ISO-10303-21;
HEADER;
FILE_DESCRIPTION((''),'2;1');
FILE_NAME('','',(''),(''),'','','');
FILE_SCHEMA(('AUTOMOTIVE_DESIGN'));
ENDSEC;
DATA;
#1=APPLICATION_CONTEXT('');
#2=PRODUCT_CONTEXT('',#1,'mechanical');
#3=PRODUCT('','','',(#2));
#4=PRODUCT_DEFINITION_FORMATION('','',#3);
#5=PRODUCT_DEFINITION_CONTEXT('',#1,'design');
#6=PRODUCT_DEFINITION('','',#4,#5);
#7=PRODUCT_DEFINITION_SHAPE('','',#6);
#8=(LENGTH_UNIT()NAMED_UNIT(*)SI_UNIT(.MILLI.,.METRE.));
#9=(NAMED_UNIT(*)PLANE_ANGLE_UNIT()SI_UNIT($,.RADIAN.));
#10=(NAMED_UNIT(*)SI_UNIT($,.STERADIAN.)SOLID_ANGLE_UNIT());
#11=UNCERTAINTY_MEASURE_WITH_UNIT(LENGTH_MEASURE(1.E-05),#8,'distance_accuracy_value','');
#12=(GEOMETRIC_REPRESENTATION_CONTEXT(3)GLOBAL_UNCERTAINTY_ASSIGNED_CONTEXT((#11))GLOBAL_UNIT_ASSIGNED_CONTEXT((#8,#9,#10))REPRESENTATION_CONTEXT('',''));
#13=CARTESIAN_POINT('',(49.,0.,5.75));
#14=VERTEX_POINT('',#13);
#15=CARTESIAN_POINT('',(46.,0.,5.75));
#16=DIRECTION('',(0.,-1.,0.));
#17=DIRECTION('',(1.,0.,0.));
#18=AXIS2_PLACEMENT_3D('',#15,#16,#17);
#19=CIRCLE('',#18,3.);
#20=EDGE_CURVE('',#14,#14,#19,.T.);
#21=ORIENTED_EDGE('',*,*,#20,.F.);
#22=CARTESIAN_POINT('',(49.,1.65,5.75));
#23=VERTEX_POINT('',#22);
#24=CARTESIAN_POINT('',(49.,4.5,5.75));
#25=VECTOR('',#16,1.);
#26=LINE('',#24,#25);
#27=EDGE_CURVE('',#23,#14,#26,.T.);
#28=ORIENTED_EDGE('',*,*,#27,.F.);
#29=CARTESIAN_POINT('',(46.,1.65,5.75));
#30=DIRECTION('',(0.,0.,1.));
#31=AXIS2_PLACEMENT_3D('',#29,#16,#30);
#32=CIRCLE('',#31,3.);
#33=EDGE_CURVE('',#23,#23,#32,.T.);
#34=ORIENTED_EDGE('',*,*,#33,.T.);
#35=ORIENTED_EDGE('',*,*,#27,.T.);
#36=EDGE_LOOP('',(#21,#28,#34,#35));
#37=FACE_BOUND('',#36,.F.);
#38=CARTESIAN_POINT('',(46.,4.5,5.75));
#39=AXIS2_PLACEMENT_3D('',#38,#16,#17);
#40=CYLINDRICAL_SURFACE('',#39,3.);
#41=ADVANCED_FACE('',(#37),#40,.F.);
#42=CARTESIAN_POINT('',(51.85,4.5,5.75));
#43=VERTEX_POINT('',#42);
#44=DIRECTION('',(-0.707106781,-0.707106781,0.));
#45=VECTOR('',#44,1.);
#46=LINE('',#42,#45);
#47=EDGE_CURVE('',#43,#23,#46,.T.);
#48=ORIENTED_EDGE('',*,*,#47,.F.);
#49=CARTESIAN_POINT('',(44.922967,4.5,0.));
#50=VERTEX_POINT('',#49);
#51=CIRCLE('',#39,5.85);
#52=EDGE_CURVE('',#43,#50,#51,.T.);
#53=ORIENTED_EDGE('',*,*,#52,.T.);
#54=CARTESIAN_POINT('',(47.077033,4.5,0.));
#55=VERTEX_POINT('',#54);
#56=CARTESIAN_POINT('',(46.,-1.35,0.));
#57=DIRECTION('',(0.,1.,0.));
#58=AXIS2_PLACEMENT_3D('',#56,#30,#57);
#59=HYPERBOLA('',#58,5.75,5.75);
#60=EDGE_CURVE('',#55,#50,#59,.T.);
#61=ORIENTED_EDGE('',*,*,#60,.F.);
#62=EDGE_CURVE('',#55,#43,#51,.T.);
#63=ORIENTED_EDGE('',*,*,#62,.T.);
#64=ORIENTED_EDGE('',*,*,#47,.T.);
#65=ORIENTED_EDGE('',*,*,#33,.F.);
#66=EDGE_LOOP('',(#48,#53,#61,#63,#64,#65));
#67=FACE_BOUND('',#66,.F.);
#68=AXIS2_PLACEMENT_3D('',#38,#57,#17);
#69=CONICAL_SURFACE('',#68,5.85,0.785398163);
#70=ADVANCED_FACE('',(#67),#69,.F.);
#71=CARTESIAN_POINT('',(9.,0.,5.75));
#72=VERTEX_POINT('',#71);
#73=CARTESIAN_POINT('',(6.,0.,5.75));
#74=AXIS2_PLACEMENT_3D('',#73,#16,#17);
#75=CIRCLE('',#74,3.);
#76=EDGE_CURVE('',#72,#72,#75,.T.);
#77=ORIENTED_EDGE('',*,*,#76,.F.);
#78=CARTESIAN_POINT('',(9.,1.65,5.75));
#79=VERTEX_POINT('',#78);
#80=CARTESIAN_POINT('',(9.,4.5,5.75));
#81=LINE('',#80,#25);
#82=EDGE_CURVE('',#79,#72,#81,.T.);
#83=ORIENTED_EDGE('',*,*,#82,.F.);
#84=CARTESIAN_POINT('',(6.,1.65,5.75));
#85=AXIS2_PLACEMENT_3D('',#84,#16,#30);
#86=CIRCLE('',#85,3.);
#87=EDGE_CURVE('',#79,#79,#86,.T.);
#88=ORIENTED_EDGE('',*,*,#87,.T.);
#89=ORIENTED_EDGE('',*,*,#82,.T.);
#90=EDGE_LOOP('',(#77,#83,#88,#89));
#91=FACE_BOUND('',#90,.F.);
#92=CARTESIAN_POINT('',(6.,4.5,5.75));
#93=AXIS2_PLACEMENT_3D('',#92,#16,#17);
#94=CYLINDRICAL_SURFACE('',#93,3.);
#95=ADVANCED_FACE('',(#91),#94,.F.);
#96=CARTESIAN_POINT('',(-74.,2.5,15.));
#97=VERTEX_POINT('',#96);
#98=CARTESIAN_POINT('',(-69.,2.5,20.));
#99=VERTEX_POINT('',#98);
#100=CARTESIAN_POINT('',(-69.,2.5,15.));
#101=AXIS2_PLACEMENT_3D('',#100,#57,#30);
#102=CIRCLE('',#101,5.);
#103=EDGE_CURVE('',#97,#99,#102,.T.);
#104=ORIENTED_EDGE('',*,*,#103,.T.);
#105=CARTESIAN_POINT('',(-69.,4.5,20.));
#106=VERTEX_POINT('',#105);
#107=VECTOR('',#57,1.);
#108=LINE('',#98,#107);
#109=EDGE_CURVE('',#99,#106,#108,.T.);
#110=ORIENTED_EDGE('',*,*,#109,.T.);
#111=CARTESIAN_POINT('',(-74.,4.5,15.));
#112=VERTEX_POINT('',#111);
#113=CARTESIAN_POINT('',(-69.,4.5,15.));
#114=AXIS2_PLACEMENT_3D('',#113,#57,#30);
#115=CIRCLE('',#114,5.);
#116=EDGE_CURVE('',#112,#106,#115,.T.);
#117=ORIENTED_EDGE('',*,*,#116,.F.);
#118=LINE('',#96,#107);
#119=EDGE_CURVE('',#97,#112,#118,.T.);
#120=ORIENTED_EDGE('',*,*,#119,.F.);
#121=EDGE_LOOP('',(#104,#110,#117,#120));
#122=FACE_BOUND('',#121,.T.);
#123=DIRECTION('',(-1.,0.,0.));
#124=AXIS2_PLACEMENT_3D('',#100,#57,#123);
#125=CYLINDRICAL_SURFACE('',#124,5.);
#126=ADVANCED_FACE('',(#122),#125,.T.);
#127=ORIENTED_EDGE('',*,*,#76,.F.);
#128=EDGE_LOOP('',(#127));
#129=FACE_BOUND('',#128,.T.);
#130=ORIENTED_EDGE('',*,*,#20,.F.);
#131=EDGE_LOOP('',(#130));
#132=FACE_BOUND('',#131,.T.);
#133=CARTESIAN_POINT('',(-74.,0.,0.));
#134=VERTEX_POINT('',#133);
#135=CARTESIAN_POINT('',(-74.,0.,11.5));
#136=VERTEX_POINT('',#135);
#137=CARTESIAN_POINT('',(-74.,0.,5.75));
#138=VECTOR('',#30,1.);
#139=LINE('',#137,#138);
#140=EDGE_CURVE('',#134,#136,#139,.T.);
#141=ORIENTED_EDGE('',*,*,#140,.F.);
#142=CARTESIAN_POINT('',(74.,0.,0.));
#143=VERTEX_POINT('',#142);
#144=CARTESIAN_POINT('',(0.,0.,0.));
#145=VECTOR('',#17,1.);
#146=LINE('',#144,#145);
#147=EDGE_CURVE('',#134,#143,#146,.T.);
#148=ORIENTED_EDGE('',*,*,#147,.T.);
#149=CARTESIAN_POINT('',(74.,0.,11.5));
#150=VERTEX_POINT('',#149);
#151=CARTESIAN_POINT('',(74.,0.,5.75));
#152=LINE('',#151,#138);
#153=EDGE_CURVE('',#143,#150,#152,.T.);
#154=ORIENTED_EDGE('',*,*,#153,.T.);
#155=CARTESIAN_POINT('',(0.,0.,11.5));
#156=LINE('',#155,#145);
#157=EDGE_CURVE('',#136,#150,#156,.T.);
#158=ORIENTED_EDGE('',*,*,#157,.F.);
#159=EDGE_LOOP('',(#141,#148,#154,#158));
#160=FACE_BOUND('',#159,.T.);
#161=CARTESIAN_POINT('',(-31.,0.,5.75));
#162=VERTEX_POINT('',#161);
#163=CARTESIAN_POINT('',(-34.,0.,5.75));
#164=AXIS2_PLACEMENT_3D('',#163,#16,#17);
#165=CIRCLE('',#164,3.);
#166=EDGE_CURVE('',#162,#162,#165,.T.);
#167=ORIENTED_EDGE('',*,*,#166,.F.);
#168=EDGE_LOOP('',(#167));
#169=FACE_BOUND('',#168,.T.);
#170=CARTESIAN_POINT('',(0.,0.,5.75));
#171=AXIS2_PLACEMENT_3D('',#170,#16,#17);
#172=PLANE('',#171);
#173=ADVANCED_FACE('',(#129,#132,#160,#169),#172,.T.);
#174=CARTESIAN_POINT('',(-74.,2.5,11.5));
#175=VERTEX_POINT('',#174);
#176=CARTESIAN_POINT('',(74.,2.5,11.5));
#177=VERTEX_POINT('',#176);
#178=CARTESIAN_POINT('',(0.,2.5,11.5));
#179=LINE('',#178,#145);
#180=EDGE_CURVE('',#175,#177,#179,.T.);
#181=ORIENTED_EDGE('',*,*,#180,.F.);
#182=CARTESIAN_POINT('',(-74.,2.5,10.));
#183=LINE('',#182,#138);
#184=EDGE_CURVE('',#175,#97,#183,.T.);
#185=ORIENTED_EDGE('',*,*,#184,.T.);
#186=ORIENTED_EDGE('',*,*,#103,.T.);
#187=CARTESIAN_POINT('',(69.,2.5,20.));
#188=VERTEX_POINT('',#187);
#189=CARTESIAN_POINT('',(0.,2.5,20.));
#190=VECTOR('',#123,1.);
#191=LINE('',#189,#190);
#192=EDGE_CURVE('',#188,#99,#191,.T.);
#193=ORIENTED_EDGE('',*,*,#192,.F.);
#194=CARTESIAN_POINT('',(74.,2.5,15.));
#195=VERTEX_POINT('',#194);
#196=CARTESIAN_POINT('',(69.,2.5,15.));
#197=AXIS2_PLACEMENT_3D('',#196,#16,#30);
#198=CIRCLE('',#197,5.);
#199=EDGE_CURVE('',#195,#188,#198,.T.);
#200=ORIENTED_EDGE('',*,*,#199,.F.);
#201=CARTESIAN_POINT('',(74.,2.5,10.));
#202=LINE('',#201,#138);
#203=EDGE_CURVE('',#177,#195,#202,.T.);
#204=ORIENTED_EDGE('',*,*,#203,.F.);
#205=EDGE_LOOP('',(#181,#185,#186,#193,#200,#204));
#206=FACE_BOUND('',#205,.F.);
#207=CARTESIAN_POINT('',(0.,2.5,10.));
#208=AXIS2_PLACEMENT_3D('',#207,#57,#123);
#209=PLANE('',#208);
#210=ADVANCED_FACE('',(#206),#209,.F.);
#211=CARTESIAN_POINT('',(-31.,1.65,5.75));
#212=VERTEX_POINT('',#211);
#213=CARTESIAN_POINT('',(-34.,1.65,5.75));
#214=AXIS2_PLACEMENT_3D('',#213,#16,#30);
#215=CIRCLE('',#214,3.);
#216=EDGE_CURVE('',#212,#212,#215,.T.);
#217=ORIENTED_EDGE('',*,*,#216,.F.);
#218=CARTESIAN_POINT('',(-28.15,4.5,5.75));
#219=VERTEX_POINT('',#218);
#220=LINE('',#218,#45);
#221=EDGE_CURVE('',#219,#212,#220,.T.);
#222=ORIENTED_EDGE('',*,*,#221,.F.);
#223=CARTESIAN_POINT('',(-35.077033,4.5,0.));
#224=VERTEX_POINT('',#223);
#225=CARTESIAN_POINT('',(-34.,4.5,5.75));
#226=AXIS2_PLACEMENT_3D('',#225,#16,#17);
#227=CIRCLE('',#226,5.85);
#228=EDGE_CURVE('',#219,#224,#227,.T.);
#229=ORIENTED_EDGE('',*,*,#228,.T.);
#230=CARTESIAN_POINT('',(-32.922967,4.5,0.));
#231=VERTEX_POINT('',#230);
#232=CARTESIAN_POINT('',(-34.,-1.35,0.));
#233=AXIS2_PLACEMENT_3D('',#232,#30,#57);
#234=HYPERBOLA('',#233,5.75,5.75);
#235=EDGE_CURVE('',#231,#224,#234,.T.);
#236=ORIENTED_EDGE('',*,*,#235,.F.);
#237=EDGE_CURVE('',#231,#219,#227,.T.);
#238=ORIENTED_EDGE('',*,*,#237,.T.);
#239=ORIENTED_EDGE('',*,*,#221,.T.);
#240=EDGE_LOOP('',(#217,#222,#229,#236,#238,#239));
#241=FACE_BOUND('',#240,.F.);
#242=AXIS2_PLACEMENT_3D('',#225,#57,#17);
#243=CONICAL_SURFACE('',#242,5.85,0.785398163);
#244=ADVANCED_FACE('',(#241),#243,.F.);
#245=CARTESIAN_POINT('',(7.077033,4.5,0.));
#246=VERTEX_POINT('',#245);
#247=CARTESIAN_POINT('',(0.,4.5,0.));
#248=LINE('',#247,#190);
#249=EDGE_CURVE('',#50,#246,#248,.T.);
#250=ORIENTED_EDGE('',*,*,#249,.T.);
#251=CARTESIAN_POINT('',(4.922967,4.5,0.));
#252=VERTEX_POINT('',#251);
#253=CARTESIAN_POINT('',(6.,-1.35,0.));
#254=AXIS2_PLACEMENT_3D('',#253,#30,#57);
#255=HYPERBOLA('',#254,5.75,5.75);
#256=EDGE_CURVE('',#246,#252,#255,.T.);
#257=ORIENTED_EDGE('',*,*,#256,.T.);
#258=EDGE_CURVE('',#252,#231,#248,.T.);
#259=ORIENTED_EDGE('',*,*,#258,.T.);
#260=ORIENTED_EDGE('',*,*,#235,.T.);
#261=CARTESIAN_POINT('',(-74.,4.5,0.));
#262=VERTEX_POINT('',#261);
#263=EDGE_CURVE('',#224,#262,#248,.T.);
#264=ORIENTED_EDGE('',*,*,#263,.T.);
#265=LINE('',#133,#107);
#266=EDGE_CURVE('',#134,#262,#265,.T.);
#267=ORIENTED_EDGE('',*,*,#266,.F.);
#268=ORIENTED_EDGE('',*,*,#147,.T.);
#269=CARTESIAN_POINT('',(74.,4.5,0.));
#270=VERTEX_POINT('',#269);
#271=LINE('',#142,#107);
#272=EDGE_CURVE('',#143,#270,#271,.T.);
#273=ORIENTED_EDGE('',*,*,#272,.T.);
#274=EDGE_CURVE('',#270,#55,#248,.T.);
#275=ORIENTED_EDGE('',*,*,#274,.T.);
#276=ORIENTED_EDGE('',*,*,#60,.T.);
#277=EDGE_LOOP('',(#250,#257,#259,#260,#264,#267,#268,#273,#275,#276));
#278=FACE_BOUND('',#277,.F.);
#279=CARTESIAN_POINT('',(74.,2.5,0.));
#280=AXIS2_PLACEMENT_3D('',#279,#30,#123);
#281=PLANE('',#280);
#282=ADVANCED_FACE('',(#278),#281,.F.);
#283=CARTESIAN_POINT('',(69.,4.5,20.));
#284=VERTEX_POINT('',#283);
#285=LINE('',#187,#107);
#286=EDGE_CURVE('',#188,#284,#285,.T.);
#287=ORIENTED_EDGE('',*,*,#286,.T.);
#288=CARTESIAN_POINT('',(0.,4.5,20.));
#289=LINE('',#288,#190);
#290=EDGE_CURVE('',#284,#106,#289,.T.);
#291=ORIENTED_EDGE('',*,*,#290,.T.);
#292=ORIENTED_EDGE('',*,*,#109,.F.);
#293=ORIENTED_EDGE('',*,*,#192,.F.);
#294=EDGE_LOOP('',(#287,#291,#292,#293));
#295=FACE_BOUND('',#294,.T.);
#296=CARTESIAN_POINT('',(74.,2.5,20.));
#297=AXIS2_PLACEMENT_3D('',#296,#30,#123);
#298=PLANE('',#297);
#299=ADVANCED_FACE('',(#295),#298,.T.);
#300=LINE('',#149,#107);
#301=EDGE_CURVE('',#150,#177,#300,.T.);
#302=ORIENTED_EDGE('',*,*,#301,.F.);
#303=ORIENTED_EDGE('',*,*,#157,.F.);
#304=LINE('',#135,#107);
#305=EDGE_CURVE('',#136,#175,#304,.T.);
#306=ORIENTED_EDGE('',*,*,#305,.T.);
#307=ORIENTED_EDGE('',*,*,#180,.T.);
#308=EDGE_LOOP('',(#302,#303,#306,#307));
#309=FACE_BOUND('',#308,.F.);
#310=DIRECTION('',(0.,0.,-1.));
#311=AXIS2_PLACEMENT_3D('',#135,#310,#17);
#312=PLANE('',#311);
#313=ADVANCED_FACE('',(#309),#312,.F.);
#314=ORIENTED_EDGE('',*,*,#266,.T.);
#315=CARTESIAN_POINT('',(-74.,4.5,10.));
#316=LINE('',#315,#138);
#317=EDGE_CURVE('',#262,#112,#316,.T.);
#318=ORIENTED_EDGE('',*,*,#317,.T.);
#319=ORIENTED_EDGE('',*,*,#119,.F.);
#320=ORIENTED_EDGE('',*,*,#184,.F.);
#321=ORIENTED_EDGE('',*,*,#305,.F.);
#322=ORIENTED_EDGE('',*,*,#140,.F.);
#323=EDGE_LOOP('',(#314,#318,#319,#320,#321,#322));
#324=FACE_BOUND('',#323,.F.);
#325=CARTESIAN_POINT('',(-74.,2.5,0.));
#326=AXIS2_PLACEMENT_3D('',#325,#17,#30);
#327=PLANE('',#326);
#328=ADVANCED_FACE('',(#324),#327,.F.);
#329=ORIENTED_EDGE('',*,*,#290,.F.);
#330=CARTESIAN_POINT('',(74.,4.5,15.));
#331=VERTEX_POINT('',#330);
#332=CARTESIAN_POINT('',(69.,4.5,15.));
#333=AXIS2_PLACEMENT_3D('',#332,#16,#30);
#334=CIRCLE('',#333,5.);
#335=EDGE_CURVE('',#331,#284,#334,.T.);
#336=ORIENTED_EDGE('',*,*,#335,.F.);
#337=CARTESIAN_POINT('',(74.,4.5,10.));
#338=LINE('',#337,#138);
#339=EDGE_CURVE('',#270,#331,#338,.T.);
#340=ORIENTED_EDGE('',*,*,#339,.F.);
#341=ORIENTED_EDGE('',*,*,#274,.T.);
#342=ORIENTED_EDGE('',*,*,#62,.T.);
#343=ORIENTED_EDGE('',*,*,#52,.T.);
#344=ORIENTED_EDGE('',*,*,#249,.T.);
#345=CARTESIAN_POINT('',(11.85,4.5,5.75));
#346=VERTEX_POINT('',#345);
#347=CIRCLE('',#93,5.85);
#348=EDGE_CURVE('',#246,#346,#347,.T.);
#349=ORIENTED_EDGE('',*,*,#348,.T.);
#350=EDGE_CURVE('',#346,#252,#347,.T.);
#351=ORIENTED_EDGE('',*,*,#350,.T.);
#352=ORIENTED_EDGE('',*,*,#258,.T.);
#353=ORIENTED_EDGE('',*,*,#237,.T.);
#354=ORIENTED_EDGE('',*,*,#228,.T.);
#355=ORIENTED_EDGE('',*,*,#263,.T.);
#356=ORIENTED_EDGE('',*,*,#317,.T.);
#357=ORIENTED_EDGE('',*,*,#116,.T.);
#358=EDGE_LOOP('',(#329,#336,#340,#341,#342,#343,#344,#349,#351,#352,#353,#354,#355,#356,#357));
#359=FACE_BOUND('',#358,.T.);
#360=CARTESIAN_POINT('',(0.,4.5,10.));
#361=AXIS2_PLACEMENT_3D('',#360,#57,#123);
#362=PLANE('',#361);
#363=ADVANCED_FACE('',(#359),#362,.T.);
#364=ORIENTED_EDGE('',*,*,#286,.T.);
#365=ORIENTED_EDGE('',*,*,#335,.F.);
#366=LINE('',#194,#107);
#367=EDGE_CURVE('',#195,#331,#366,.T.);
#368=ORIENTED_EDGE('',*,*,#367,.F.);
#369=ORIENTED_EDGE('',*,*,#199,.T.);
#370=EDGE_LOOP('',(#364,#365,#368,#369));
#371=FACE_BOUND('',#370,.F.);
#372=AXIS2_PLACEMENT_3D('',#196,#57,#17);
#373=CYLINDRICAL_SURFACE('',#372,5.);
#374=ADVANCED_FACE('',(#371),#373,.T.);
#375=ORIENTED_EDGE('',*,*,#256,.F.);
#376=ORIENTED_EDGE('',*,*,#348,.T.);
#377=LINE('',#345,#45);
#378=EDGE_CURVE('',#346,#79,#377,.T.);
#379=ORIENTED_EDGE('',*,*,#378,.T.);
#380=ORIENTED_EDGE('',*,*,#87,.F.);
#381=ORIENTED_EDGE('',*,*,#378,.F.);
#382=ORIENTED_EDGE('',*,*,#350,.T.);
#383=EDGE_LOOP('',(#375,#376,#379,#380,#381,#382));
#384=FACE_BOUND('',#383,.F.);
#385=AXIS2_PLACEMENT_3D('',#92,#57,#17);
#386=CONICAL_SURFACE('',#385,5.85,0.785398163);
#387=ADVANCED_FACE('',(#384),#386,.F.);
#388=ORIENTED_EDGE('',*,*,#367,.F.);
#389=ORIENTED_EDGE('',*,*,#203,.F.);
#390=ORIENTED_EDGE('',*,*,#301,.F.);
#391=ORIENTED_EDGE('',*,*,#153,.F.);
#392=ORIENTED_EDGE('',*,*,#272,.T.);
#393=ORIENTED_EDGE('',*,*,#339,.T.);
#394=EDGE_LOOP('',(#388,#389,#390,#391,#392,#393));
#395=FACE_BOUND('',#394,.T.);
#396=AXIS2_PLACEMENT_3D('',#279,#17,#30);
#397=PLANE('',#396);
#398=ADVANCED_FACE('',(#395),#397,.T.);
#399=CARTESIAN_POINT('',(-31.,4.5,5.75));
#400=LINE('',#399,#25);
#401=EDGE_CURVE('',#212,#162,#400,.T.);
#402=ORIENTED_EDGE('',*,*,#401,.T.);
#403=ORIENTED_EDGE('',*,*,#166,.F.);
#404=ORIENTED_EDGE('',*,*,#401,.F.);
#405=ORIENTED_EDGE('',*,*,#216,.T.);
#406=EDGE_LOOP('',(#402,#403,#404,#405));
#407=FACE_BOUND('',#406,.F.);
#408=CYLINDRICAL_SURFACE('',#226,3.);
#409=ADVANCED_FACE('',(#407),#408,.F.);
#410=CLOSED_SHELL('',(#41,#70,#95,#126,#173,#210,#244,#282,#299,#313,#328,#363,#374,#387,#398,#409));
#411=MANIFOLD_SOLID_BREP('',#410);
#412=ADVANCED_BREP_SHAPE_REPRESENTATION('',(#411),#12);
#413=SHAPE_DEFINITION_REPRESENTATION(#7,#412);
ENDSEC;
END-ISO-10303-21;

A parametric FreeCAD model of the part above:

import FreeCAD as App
import Part
import Sketcher
from FreeCAD import Vector
Q = App.Units.Quantity


def edges_at(feature, points):
    """Names of the edges that pass closest to the given points."""
    edges = feature.Shape.Edges
    near = lambda p: min(range(len(edges)), key=lambda i: edges[i].distToShape(Part.Vertex(*p))[0])
    return sorted({f"Edge{near(p) + 1}" for p in points})


def add_polygon(sketch, points):
    """Adds a closed chain of lines whose ends are joined by coincident constraints."""
    first, n = sketch.GeometryCount, len(points)
    for a, b in zip(points, points[1:] + points[:1]):
        sketch.addGeometry(Part.LineSegment(App.Vector(*a, 0), App.Vector(*b, 0)), False)
    for i in range(n):
        sketch.addConstraint(Sketcher.Constraint("Coincident", first + i, 2, first + (i + 1) % n, 1))

doc = App.newDocument("Part")
body = doc.addObject("PartDesign::Body", "Body")

sketch1 = body.newObject("Sketcher::SketchObject", "Sketch")
sketch1.AttachmentSupport = (doc.getObject("XZ_Plane"), [""])
sketch1.MapMode = "FlatFace"
add_polygon(sketch1, [(-74, 12), (-74, 0), (74, 0), (74, 12)])
sketch1.addConstraint([
    Sketcher.Constraint("Vertical", 0),
    Sketcher.Constraint("Horizontal", 1),
    Sketcher.Constraint("Vertical", 2),
    Sketcher.Constraint("Horizontal", 3),
    Sketcher.Constraint("Symmetric", 0, 2, 1, 2, -1, 1),
    Sketcher.Constraint("DistanceX", 1, 1, 1, 2, Q("148 mm")),
    Sketcher.Constraint("DistanceY", 0, 2, 0, 1, Q("11.5 mm")),
])
pad1 = body.newObject("PartDesign::Pad", "Pad")
pad1.Profile = sketch1
pad1.Length = 2.5
pad1.Reversed = True

sketch2 = body.newObject("Sketcher::SketchObject", "Sketch001")
sketch2.AttachmentSupport = (doc.getObject("XZ_Plane"), [""])
sketch2.MapMode = "FlatFace"
sketch2.AttachmentOffset = App.Placement(Vector(0, 0, -2.5), App.Rotation())
add_polygon(sketch2, [(74, 20), (74, 0), (-74, 0), (-74, 20)])
sketch2.addConstraint([
    Sketcher.Constraint("Vertical", 0),
    Sketcher.Constraint("Horizontal", 1),
    Sketcher.Constraint("Vertical", 2),
    Sketcher.Constraint("Horizontal", 3),
    Sketcher.Constraint("Symmetric", 0, 2, 1, 2, -1, 1),
    Sketcher.Constraint("DistanceX", 1, 2, 1, 1, Q("148 mm")),
    Sketcher.Constraint("DistanceY", 0, 2, 0, 1, Q("20 mm")),
])
pad2 = body.newObject("PartDesign::Pad", "Pad001")
pad2.Profile = sketch2
pad2.Length = 2
pad2.Reversed = True

sketch3 = body.newObject("Sketcher::SketchObject", "Sketch002")
sketch3.AttachmentSupport = (doc.getObject("XZ_Plane"), [""])
sketch3.MapMode = "FlatFace"
sketch3.AttachmentOffset = App.Placement(Vector(0, 0, -4.5), App.Rotation())
sketch3.addGeometry([
    Part.Circle(Vector(46, 5.8, 0), Vector(0, 0, 1), 3),
    Part.Circle(Vector(6, 5.8, 0), Vector(0, 0, 1), 3),
    Part.Circle(Vector(-34, 5.8, 0), Vector(0, 0, 1), 3),
], False)
sketch3.addConstraint([
    Sketcher.Constraint("Equal", 0, 1),
    Sketcher.Constraint("Equal", 1, 2),
    Sketcher.Constraint("Horizontal", 0, 3, 1, 3),
    Sketcher.Constraint("Horizontal", 1, 3, 2, 3),
    Sketcher.Constraint("Diameter", 0, Q("6 mm")),
    Sketcher.Constraint("DistanceX", -1, 1, 0, 3, Q("46 mm")),
    Sketcher.Constraint("DistanceX", -1, 1, 1, 3, Q("6 mm")),
    Sketcher.Constraint("DistanceX", 2, 3, -1, 1, Q("34 mm")),
    Sketcher.Constraint("DistanceY", -1, 1, 0, 3, Q("5.75 mm")),
])
doc.recompute()
hole = body.newObject("PartDesign::Hole", "Hole")
hole.Profile = sketch3
hole.ThreadType = "None"
hole.Diameter = 6
hole.DepthType = "ThroughAll"
hole.HoleCutType = "Countersink"
hole.HoleCutDiameter = 11.7
hole.HoleCutCountersinkAngle = 90
hole.Reversed = True
doc.recompute()

fillet = body.newObject("PartDesign::Fillet", "Fillet")
fillet.Base = (hole, edges_at(hole, [(-74, 3.5, 20), (74, 3.5, 20)]))
fillet.Radius = 5

doc.recompute()
